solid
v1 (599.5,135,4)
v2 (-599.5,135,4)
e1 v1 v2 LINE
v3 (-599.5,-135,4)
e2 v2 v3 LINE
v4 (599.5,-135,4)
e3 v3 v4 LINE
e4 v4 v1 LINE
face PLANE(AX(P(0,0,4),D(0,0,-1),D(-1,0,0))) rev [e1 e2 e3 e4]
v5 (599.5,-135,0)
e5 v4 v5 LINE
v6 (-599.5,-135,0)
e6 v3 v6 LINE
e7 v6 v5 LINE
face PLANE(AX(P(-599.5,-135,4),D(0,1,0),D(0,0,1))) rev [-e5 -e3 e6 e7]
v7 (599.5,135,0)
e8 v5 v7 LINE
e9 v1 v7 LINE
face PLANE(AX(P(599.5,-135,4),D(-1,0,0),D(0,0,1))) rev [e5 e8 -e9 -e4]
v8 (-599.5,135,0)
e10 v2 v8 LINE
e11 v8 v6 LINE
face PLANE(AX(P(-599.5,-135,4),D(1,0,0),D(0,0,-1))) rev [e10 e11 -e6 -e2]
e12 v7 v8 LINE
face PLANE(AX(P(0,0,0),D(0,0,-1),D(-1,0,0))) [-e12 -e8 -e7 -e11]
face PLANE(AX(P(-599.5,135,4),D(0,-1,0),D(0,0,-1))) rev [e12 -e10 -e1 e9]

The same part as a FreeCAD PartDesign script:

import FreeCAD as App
import Part
import Sketcher
from FreeCAD import Vector
Q = App.Units.Quantity


def add_polygon(sketch, points):
    """Adds a closed chain of lines whose ends are joined by coincident constraints."""
    first, n = sketch.GeometryCount, len(points)
    for a, b in zip(points, points[1:] + points[:1]):
        sketch.addGeometry(Part.LineSegment(App.Vector(*a, 0), App.Vector(*b, 0)), False)
    for i in range(n):
        sketch.addConstraint(Sketcher.Constraint("Coincident", first + i, 2, first + (i + 1) % n, 1))

doc = App.newDocument("Part")
params = doc.addObject("Spreadsheet::Sheet", "Params")
for row, (alias, value) in enumerate([
    ("sketch1_width", "1199 mm"),
    ("sketch1_height", "270 mm"),
    ("pad1_length", "4 mm"),
], start=1):
    params.set(f"A{row}", alias)
    params.set(f"B{row}", "=" + value)
    params.setAlias(f"B{row}", alias)

body = doc.addObject("PartDesign::Body", "Body")

# Sketch on XY plane
sketch1 = body.newObject("Sketcher::SketchObject", "Sketch")
sketch1.AttachmentSupport = (doc.getObject("XY_Plane"), [""])
sketch1.MapMode = "FlatFace"
add_polygon(sketch1, [(-600, 135), (-600, -135), (600, -135), (600, 135)])  # lines 0-3
sketch1.addConstraint([
    Sketcher.Constraint("Vertical", 0),
    Sketcher.Constraint("Horizontal", 1),
    Sketcher.Constraint("Vertical", 2),
    Sketcher.Constraint("Horizontal", 3),
    Sketcher.Constraint("Symmetric", 0, 2, 2, 2, -1, 1),
    Sketcher.Constraint("DistanceX", 1, 1, 1, 2, Q("1199 mm")),
    Sketcher.Constraint("DistanceY", 0, 2, 0, 1, Q("270 mm")),
])
sketch1.setExpression("Constraints[9]", "Params.sketch1_width")
sketch1.setExpression("Constraints[10]", "Params.sketch1_height")
pad1 = body.newObject("PartDesign::Pad", "Pad")
pad1.Profile = sketch1
pad1.setExpression("Length", "Params.pad1_length")

doc.recompute()
